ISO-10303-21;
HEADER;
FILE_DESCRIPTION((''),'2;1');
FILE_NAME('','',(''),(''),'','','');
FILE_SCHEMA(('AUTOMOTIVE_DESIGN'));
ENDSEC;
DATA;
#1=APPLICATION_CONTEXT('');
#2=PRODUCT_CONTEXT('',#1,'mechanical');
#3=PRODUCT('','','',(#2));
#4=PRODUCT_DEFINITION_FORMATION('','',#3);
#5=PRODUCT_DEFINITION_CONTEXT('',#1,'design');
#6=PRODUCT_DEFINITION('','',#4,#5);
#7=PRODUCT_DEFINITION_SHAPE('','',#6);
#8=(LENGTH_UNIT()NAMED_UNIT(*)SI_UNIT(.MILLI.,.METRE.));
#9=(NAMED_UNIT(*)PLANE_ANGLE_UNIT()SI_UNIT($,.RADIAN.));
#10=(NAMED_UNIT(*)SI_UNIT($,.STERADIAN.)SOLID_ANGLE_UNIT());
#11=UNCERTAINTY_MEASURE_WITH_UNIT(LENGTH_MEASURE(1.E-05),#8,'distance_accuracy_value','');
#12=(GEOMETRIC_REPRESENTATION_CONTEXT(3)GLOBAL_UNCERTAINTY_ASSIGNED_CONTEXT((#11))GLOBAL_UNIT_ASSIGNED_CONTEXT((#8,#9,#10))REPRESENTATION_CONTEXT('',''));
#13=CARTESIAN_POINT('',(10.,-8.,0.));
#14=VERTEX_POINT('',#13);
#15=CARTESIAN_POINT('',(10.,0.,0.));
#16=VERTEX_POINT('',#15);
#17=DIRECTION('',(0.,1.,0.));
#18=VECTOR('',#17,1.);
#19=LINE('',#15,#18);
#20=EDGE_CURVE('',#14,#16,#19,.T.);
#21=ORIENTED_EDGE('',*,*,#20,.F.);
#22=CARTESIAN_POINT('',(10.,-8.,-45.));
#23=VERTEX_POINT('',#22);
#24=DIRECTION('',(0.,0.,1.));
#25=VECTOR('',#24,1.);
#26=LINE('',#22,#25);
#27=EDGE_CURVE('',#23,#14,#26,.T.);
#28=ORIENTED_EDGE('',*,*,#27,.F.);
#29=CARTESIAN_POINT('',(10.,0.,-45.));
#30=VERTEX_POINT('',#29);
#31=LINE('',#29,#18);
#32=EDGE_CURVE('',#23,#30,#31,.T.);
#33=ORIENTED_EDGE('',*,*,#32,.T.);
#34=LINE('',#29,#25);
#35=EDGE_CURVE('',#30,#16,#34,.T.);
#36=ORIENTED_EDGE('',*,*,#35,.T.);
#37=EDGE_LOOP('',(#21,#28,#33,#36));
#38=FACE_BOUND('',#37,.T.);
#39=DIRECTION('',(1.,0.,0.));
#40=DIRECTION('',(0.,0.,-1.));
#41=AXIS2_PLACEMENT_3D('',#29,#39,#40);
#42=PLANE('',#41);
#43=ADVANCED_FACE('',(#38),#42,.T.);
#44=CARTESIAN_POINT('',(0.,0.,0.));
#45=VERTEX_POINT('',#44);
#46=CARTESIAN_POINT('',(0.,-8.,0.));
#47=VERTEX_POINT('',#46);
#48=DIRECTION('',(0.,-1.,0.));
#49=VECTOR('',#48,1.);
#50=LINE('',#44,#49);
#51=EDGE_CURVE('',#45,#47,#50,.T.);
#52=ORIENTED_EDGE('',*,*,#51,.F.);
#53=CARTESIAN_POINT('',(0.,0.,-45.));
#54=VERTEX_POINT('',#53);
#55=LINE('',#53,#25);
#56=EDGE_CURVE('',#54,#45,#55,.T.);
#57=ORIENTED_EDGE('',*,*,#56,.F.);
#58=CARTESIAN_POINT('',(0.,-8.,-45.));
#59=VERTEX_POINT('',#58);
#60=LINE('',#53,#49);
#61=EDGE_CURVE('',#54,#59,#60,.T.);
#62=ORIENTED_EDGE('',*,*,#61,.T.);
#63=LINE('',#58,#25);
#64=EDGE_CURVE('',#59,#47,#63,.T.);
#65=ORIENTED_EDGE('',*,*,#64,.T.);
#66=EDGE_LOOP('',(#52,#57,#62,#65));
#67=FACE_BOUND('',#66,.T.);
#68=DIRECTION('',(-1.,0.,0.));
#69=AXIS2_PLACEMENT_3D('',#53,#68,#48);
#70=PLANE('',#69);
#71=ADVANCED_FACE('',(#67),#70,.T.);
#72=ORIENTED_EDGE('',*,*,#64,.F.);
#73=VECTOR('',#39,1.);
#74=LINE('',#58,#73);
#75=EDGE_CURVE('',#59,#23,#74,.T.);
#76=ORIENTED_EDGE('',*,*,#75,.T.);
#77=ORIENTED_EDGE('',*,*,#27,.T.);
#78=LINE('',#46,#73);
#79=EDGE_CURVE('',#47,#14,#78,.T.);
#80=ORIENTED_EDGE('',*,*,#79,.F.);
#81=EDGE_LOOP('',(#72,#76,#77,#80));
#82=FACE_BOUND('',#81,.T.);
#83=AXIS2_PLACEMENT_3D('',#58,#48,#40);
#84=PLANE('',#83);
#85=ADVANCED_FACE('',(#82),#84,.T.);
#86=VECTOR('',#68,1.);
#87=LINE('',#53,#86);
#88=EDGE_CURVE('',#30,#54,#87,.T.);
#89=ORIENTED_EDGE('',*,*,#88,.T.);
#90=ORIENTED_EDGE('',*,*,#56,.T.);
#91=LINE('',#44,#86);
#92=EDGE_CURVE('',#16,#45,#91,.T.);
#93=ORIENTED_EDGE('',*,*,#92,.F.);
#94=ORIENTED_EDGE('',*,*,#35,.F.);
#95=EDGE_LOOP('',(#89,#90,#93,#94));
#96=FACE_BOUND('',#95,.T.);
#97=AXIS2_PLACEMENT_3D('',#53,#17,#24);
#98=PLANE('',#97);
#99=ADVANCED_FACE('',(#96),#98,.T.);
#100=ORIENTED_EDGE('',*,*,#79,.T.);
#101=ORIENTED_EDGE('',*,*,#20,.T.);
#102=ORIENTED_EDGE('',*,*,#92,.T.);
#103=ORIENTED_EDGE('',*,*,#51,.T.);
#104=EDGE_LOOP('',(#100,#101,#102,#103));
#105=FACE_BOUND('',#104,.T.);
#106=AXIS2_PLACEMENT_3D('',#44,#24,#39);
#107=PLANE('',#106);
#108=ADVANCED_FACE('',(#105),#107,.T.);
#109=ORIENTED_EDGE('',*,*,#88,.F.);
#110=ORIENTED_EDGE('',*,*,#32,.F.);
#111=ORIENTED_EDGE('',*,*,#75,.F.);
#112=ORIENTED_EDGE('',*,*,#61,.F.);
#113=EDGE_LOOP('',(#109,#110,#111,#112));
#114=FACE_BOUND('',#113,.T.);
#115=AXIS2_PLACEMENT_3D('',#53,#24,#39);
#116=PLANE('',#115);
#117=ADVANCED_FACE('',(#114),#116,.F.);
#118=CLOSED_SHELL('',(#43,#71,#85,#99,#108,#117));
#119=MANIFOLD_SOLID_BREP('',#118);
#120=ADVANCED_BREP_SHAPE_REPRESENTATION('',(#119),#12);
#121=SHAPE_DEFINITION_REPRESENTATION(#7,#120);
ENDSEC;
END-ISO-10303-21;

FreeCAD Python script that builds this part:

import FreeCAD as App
import Part
import Sketcher
from FreeCAD import Vector
Q = App.Units.Quantity


def add_polygon(sketch, points):
    """Adds a closed chain of lines whose ends are joined by coincident constraints."""
    first, n = sketch.GeometryCount, len(points)
    for a, b in zip(points, points[1:] + points[:1]):
        sketch.addGeometry(Part.LineSegment(App.Vector(*a, 0), App.Vector(*b, 0)), False)
    for i in range(n):
        sketch.addConstraint(Sketcher.Constraint("Coincident", first + i, 2, first + (i + 1) % n, 1))

doc = App.newDocument("Part")
body = doc.addObject("PartDesign::Body", "Body")

# Sketch on XY plane
sketch1 = doc.addObject("Sketcher::SketchObject", "Sketch")
body.addObject(sketch1)
sketch1.AttachmentSupport = (doc.XY_Plane, [""])
sketch1.MapMode = "FlatFace"
add_polygon(sketch1, [(0, 0), (0, -8), (10, -8), (10, 0)])  # lines 0-3
sketch1.addConstraint([
    Sketcher.Constraint("Vertical", 0),
    Sketcher.Constraint("Horizontal", 1),
    Sketcher.Constraint("Vertical", 2),
    Sketcher.Constraint("Horizontal", 3),
    Sketcher.Constraint("Coincident", 3, 2, -1, 1),
    Sketcher.Constraint("DistanceX", 1, 1, 1, 2, Q("10 mm")),
    Sketcher.Constraint("DistanceY", 0, 2, 0, 1, Q("8 mm")),
])
pad1 = doc.addObject("PartDesign::Pad", "Pad")
body.addObject(pad1)
pad1.Profile = sketch1
pad1.Length = 45
pad1.Reversed = True

doc.recompute()
